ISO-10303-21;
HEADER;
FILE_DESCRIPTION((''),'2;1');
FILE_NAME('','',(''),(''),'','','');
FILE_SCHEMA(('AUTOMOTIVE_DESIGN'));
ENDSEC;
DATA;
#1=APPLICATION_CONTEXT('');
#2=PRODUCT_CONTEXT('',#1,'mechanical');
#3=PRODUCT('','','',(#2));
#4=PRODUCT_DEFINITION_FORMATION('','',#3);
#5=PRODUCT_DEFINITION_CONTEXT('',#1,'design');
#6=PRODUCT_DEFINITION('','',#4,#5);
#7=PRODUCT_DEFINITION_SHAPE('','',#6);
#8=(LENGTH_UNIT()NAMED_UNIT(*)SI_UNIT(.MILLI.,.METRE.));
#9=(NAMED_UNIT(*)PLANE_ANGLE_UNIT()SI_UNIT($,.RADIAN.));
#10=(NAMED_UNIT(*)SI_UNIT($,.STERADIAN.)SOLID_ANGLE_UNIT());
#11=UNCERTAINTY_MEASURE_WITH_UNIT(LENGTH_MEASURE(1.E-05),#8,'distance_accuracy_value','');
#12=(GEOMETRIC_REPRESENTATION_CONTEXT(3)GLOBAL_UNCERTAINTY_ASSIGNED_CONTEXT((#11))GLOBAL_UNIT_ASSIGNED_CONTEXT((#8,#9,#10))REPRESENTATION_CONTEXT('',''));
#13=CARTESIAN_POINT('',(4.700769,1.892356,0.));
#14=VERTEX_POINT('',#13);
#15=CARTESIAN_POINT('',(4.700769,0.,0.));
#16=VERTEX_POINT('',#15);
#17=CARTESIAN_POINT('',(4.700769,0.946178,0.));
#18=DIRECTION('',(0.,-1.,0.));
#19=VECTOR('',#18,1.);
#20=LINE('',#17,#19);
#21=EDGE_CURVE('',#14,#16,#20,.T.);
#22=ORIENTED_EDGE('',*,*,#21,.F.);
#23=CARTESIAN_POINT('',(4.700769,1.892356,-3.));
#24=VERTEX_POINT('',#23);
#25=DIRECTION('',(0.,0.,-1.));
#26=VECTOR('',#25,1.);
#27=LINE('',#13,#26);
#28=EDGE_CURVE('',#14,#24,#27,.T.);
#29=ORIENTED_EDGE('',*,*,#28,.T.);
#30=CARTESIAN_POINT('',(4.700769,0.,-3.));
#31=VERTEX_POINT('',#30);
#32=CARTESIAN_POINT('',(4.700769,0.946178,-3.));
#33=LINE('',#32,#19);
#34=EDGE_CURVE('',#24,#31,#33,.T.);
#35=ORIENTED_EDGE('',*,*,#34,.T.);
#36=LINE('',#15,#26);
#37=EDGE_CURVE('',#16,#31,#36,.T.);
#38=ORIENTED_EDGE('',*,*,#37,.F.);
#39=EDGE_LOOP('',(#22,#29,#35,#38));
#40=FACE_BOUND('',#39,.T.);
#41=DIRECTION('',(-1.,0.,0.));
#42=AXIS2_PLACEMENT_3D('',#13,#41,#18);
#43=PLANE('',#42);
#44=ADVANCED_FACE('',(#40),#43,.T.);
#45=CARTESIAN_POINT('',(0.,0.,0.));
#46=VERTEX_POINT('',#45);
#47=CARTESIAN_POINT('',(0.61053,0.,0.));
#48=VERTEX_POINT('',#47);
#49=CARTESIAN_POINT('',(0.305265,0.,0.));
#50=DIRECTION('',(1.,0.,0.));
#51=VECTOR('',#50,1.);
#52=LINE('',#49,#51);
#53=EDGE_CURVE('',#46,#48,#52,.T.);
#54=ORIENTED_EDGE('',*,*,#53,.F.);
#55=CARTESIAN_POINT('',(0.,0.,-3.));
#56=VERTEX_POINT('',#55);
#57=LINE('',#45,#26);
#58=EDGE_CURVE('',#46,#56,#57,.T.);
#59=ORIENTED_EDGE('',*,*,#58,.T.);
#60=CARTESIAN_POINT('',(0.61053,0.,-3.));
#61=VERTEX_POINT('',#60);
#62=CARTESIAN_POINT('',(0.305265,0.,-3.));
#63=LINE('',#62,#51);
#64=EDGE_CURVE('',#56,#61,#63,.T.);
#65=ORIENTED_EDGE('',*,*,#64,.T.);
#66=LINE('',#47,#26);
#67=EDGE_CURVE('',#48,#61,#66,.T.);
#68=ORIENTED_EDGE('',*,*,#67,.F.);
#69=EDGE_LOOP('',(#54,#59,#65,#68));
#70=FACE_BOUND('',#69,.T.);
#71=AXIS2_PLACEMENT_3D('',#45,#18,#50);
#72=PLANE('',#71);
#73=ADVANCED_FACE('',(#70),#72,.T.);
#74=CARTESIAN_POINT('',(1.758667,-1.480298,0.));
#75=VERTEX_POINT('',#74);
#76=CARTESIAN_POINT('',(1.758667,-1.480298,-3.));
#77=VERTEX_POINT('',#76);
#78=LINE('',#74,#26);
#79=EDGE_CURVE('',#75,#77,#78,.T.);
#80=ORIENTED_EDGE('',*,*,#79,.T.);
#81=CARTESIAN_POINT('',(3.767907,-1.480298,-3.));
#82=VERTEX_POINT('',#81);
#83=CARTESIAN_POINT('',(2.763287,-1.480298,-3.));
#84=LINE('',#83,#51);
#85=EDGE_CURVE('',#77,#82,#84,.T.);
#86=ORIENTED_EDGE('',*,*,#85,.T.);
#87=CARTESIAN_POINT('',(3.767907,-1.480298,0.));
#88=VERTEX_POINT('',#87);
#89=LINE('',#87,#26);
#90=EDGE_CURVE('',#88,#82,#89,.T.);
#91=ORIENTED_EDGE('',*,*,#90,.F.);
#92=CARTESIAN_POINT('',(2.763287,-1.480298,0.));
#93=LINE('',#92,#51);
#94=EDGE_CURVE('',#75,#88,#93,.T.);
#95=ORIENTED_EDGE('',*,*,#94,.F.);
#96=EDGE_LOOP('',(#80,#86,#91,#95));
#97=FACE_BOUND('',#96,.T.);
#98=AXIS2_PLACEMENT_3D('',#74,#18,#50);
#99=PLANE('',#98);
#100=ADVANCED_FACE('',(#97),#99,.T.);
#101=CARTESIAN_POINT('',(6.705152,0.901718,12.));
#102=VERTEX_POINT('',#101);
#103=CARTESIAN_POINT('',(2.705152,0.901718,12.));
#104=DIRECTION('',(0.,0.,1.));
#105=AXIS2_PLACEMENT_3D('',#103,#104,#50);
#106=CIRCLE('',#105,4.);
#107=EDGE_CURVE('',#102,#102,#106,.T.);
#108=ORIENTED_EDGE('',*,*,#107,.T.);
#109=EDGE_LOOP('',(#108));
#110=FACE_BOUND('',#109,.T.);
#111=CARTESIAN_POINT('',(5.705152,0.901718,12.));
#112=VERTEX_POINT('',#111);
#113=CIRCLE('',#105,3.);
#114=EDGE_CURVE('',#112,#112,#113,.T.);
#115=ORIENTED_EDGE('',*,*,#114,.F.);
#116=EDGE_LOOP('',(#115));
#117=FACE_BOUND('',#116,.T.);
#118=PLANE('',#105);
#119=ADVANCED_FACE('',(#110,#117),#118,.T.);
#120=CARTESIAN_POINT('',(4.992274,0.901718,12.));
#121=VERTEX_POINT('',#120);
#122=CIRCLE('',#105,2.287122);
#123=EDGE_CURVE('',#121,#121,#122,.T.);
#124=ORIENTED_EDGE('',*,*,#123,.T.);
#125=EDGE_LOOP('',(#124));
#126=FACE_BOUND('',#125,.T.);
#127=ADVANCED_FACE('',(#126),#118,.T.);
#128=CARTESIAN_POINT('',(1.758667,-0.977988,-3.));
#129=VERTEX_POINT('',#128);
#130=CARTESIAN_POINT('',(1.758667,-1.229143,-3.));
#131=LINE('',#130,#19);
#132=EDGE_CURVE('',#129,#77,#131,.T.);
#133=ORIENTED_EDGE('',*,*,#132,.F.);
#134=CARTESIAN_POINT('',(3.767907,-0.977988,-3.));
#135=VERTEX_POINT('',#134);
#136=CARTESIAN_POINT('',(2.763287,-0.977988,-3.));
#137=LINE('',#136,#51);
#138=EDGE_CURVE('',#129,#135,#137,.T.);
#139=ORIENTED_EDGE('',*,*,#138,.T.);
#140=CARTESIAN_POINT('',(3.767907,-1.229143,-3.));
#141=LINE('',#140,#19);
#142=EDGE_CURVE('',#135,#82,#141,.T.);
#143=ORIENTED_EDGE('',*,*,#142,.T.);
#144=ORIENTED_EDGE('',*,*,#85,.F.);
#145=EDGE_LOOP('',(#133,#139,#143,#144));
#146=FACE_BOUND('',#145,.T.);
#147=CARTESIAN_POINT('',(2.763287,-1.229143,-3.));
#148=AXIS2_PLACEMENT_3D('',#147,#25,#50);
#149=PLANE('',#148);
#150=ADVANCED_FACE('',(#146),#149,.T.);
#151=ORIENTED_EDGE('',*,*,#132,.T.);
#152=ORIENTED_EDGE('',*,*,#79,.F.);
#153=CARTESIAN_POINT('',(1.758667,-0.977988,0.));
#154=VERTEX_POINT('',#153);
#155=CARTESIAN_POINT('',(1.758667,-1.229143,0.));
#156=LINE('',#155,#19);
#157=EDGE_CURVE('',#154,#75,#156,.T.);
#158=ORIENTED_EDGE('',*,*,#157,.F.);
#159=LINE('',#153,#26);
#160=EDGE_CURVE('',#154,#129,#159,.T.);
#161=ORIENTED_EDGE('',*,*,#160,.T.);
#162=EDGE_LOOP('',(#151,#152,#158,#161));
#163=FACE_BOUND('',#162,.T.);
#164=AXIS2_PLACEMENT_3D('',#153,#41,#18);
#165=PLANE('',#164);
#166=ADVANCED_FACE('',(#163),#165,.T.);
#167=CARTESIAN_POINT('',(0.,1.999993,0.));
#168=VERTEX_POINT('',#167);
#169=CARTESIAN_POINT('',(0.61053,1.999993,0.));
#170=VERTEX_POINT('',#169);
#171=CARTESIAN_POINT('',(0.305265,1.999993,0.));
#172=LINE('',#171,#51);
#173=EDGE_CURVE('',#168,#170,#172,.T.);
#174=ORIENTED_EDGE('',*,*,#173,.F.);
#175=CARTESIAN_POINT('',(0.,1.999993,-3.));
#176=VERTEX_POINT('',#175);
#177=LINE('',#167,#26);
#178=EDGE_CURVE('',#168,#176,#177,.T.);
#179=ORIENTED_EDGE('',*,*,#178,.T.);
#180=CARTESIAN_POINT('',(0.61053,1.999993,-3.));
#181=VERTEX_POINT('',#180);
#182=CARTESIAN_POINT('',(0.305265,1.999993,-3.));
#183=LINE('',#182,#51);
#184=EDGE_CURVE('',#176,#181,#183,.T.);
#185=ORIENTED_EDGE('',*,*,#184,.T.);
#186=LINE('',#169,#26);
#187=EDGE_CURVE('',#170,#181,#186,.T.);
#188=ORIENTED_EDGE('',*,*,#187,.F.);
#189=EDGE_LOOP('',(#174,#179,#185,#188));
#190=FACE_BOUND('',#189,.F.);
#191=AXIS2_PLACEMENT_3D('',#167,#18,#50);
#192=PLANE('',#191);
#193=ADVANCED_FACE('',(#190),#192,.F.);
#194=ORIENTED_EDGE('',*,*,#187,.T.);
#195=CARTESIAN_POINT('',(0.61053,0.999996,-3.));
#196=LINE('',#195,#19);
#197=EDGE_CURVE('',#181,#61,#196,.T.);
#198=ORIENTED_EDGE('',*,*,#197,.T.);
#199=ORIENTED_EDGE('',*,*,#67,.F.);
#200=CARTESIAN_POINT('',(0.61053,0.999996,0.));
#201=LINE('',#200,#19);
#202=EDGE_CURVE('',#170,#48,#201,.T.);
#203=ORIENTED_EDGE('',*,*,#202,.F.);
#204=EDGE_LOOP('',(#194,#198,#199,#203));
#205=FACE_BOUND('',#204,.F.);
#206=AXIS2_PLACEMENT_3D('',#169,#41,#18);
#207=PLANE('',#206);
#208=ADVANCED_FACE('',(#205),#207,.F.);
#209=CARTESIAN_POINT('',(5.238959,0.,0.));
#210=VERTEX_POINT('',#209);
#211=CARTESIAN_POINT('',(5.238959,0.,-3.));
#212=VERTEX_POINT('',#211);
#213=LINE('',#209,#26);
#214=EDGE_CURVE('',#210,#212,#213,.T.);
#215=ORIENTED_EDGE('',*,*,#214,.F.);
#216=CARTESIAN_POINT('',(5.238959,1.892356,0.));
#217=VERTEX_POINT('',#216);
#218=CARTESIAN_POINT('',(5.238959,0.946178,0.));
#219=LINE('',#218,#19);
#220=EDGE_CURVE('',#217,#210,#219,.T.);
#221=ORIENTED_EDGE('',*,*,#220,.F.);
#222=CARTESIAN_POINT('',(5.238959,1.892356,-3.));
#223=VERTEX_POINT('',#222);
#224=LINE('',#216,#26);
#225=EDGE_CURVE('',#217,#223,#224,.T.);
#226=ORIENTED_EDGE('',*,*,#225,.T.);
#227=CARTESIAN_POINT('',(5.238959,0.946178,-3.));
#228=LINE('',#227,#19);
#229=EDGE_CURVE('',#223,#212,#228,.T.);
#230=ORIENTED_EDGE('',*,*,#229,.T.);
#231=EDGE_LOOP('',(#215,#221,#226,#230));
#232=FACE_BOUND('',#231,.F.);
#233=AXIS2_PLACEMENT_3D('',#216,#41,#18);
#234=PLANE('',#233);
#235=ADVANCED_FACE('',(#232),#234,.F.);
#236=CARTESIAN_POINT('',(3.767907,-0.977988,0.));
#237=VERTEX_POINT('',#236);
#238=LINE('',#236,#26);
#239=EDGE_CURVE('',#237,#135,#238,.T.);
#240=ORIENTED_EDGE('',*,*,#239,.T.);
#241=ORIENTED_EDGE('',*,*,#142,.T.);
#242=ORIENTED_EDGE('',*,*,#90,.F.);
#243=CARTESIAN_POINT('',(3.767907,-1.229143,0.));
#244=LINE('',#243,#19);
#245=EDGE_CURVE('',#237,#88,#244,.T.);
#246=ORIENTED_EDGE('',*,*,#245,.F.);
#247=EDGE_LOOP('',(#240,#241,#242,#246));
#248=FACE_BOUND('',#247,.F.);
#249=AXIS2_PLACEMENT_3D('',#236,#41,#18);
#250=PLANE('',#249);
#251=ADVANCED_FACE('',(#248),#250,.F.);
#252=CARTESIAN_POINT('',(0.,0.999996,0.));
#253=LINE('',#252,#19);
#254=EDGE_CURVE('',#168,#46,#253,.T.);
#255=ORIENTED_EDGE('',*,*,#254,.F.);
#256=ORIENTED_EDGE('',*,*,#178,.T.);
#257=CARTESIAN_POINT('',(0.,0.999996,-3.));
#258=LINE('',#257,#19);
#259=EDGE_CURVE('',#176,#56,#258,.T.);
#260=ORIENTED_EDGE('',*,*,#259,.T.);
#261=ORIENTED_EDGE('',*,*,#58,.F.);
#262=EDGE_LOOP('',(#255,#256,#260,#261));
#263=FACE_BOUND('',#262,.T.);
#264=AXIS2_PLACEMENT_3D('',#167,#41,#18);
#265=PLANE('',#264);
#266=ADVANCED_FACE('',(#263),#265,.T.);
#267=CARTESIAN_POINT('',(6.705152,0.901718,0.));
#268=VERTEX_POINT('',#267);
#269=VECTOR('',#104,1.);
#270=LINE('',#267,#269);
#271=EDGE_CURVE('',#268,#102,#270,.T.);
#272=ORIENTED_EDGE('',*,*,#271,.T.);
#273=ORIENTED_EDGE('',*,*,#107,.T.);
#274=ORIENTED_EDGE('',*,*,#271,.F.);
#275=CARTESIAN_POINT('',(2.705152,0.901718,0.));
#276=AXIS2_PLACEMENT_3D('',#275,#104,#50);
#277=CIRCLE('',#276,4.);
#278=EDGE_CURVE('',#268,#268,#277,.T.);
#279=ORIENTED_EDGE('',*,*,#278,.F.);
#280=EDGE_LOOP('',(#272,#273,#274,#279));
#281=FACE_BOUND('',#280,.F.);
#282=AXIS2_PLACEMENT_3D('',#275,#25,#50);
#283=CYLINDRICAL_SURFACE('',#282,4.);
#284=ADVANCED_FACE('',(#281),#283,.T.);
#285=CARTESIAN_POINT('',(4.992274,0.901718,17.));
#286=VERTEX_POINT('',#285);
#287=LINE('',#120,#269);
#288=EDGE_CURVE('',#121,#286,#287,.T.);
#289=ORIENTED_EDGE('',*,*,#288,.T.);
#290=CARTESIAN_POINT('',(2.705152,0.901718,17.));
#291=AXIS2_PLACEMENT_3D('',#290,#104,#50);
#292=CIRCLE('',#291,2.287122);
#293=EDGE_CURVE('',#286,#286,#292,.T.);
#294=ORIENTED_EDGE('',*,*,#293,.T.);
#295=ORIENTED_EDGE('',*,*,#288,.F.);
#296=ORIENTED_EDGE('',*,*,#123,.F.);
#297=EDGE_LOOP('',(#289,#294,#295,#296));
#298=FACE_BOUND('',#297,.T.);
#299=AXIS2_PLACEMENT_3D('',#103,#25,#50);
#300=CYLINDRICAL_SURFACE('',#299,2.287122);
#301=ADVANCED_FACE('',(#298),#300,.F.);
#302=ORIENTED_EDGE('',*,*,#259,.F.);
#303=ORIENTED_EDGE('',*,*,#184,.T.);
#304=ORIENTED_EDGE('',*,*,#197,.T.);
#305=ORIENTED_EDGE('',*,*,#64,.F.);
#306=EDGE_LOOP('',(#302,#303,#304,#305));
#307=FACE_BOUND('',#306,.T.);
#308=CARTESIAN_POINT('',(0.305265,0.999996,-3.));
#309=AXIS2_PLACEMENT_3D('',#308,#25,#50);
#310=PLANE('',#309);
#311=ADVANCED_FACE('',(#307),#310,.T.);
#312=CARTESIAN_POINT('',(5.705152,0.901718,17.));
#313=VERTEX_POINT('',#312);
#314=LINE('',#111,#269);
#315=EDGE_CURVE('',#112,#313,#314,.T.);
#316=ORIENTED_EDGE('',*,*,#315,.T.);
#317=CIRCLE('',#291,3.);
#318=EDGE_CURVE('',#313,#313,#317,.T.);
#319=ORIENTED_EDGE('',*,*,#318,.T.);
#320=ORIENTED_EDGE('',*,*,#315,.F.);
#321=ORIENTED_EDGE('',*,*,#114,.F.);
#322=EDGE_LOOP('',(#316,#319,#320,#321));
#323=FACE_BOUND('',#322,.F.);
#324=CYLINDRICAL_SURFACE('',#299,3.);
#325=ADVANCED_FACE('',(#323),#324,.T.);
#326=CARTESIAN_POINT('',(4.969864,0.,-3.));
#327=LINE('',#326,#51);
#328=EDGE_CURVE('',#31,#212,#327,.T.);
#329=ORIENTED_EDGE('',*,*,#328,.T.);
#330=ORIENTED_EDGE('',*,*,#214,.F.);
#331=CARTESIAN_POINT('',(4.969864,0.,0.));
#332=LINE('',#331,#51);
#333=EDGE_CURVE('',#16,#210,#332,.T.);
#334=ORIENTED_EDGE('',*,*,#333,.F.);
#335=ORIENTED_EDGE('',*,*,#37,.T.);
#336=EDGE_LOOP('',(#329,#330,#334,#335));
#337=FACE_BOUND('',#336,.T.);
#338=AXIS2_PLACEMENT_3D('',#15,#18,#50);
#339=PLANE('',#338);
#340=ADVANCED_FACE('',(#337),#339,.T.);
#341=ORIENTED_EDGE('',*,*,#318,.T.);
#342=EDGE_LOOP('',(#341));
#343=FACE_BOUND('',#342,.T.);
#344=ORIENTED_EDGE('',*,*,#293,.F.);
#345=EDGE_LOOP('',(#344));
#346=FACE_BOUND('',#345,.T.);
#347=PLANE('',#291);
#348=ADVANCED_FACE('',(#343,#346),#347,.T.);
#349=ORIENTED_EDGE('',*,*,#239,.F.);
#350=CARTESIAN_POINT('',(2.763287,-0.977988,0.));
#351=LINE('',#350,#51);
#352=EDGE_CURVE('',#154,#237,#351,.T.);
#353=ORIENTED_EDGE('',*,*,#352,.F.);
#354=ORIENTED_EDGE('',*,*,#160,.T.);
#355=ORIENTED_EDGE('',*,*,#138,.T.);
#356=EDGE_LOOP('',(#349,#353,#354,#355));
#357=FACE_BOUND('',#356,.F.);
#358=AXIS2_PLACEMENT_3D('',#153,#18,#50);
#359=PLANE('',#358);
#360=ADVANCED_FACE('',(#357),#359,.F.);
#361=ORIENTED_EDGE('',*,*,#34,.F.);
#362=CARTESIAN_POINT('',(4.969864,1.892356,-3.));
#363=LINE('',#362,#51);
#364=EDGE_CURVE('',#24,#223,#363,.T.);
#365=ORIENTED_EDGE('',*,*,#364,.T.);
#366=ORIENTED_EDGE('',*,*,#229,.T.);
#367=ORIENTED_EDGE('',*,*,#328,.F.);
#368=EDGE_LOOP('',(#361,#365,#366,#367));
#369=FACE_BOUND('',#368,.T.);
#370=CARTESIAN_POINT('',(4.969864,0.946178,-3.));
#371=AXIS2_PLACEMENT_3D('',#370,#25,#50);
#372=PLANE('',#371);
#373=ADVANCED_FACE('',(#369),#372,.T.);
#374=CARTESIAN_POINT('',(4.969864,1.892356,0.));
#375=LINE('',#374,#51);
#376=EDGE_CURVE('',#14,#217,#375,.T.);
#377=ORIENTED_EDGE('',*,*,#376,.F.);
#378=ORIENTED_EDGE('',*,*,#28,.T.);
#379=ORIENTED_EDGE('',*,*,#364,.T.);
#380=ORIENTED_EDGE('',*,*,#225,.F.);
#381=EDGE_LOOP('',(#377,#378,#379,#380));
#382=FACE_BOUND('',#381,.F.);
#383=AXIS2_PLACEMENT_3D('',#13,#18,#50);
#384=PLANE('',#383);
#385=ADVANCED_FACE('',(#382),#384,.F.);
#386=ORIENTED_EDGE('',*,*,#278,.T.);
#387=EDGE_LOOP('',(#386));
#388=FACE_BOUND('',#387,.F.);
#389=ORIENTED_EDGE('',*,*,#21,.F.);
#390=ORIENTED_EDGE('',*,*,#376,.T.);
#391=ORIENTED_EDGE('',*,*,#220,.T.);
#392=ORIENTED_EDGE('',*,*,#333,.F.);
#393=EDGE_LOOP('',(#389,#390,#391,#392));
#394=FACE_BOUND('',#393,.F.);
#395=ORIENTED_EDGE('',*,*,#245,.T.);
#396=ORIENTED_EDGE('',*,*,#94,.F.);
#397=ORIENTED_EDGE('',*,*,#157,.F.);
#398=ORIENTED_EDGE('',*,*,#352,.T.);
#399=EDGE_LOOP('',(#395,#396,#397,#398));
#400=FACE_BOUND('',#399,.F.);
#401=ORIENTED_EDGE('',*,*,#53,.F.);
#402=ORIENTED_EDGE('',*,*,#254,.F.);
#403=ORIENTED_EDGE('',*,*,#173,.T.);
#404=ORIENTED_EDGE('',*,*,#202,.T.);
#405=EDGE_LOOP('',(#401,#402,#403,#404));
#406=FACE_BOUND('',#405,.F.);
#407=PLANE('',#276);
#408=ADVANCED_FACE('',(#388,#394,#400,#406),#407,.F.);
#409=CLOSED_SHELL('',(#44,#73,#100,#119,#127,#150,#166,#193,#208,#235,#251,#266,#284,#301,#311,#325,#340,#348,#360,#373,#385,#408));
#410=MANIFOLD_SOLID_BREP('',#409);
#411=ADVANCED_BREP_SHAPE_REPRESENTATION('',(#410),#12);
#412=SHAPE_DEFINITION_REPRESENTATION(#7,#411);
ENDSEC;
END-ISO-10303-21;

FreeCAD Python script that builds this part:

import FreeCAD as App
import Part
import Sketcher

V = App.Vector
Q = App.Units.Quantity


def add_polygon(sketch, points):
    """Adds a closed chain of lines whose ends are joined by coincident constraints."""
    first, n = sketch.GeometryCount, len(points)
    for a, b in zip(points, points[1:] + points[:1]):
        sketch.addGeometry(Part.LineSegment(App.Vector(*a, 0), App.Vector(*b, 0)), False)
    for i in range(n):
        sketch.addConstraint(Sketcher.Constraint("Coincident", first + i, 2, first + (i + 1) % n, 1))

doc = App.newDocument("Part")
body = doc.addObject("PartDesign::Body", "Body")

sketch1 = body.newObject("Sketcher::SketchObject", "Sketch")
sketch1.AttachmentSupport = (doc.getObject("XY_Plane"), [""])
sketch1.MapMode = "FlatFace"
sketch1.addGeometry(Part.Circle(V(2.7, 0.9, 0), V(0, 0, 1), 4), False)
sketch1.addConstraint(Sketcher.Constraint("Diameter", 0, Q("8 mm")))
sketch1.addConstraint(Sketcher.Constraint("DistanceX", -1, 1, 0, 3, Q("2.705152 mm")))
sketch1.addConstraint(Sketcher.Constraint("DistanceY", -1, 1, 0, 3, Q("0.901718 mm")))
pad1 = body.newObject("PartDesign::Pad", "Pad")
pad1.Profile = sketch1
pad1.Length = 12

sketch2 = body.newObject("Sketcher::SketchObject", "Sketch001")
sketch2.AttachmentSupport = (doc.getObject("XY_Plane"), [""])
sketch2.MapMode = "FlatFace"
sketch2.AttachmentOffset = App.Placement(V(0, 0, 12), App.Rotation())
sketch2.addGeometry(Part.Circle(V(2.7, 0.9, 0), V(0, 0, 1), 3), False)
sketch2.addGeometry(Part.Circle(V(2.7, 0.9, 0), V(0, 0, 1), 2.3), False)
sketch2.addConstraint(Sketcher.Constraint("Coincident", 1, 3, 0, 3))
sketch2.addConstraint(Sketcher.Constraint("Diameter", 0, Q("6 mm")))
sketch2.addConstraint(Sketcher.Constraint("Diameter", 1, Q("4.574244 mm")))
sketch2.addConstraint(Sketcher.Constraint("DistanceX", -1, 1, 0, 3, Q("2.705152 mm")))
sketch2.addConstraint(Sketcher.Constraint("DistanceY", -1, 1, 0, 3, Q("0.901718 mm")))
pad2 = body.newObject("PartDesign::Pad", "Pad001")
pad2.Profile = sketch2
pad2.Length = 5

sketch3 = body.newObject("Sketcher::SketchObject", "Sketch002")
sketch3.AttachmentSupport = (doc.getObject("XY_Plane"), [""])
sketch3.MapMode = "FlatFace"
add_polygon(sketch3, [(0, 0), (0, 2), (0.6, 2), (0.6, 0)])
add_polygon(sketch3, [(4.7, 0), (4.7, 1.9), (5.2, 1.9), (5.2, 0)])
add_polygon(sketch3, [(1.8, -1.5), (1.8, -1), (3.8, -1), (3.8, -1.5)])
sketch3.addConstraint(Sketcher.Constraint("Vertical", 0))
sketch3.addConstraint(Sketcher.Constraint("Horizontal", 1))
sketch3.addConstraint(Sketcher.Constraint("Vertical", 2))
sketch3.addConstraint(Sketcher.Constraint("Horizontal", 3))
sketch3.addConstraint(Sketcher.Constraint("Vertical", 4))
sketch3.addConstraint(Sketcher.Constraint("Horizontal", 5))
sketch3.addConstraint(Sketcher.Constraint("Vertical", 6))
sketch3.addConstraint(Sketcher.Constraint("Horizontal", 7))
sketch3.addConstraint(Sketcher.Constraint("Vertical", 8))
sketch3.addConstraint(Sketcher.Constraint("Horizontal", 9))
sketch3.addConstraint(Sketcher.Constraint("Vertical", 10))
sketch3.addConstraint(Sketcher.Constraint("Horizontal", 11))
sketch3.addConstraint(Sketcher.Constraint("Coincident", 3, 2, -1, 1))
sketch3.addConstraint(Sketcher.Constraint("PointOnObject", 6, 2, -1))
sketch3.addConstraint(Sketcher.Constraint("DistanceX", 1, 1, 1, 2, Q("0.61053 mm")))
sketch3.addConstraint(Sketcher.Constraint("DistanceX", 5, 1, 5, 2, Q("0.53819 mm")))
sketch3.addConstraint(Sketcher.Constraint("DistanceX", 9, 1, 9, 2, Q("2.00924 mm")))
sketch3.addConstraint(Sketcher.Constraint("DistanceY", 8, 1, 8, 2, Q("0.50231 mm")))
sketch3.addConstraint(Sketcher.Constraint("DistanceY", 0, 1, 0, 2, Q("1.999993 mm")))
sketch3.addConstraint(Sketcher.Constraint("DistanceY", 4, 1, 4, 2, Q("1.892356 mm")))
sketch3.addConstraint(Sketcher.Constraint("DistanceX", -1, 1, 4, 2, Q("4.700769 mm")))
sketch3.addConstraint(Sketcher.Constraint("DistanceY", 8, 2, 1, 2, Q("2.977981 mm")))
sketch3.addConstraint(Sketcher.Constraint("DistanceX", -1, 1, 8, 2, Q("1.758667 mm")))
pad3 = body.newObject("PartDesign::Pad", "Pad002")
pad3.Profile = sketch3
pad3.Length = 3
pad3.Reversed = True

doc.recompute()
